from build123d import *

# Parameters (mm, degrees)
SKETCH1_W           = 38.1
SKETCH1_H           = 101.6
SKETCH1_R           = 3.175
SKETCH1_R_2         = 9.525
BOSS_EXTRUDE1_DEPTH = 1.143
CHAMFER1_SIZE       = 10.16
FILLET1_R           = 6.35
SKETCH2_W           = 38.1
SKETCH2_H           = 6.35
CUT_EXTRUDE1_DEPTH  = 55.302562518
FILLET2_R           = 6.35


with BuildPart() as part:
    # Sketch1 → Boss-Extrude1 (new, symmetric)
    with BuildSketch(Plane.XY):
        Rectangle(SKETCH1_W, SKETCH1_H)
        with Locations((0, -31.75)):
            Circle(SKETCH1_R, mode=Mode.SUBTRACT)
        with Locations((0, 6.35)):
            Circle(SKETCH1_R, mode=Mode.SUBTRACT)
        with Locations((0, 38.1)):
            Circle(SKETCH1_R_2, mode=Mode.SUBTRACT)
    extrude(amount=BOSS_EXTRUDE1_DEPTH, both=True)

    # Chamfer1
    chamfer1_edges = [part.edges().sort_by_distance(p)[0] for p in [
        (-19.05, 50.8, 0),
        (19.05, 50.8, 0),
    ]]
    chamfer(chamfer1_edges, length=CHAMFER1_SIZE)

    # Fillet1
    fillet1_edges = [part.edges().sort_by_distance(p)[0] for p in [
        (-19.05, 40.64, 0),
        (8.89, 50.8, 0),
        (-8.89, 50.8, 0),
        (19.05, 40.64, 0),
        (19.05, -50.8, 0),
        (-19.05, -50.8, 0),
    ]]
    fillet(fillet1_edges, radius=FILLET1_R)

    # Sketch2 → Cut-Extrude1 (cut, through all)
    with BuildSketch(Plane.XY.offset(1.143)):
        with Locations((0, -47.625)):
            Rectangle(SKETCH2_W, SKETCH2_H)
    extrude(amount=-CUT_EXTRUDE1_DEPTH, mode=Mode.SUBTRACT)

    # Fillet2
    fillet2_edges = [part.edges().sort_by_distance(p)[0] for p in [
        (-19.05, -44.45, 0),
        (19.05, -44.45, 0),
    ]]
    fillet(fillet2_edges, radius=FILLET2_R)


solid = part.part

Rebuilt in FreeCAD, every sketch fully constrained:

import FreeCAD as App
import Part
import Sketcher
from FreeCAD import Vector
Q = App.Units.Quantity


def edges_at(feature, points):
    """Names of the edges that pass closest to the given points."""
    edges = feature.Shape.Edges
    near = lambda p: min(range(len(edges)), key=lambda i: edges[i].distToShape(Part.Vertex(*p))[0])
    return sorted({f"Edge{near(p) + 1}" for p in points})


def add_polygon(sketch, points):
    """Adds a closed chain of lines whose ends are joined by coincident constraints."""
    first, n = sketch.GeometryCount, len(points)
    for a, b in zip(points, points[1:] + points[:1]):
        sketch.addGeometry(Part.LineSegment(App.Vector(*a, 0), App.Vector(*b, 0)), False)
    for i in range(n):
        sketch.addConstraint(Sketcher.Constraint("Coincident", first + i, 2, first + (i + 1) % n, 1))

doc = App.newDocument("Part")
body = doc.addObject("PartDesign::Body", "Body")

sketch1 = body.newObject("Sketcher::SketchObject", "Sketch")
sketch1.AttachmentSupport = (doc.getObject("XY_Plane"), [""])
sketch1.MapMode = "FlatFace"
add_polygon(sketch1, [(-19.1, 50.8), (-19.1, -50.8), (19.1, -50.8), (19.1, 50.8)])
sketch1.addGeometry(Part.Circle(Vector(0, -31.8, 0), Vector(0, 0, 1), 3.2), False)
sketch1.addGeometry(Part.Circle(Vector(0, 6.3, 0), Vector(0, 0, 1), 3.2), False)
sketch1.addGeometry(Part.Circle(Vector(0, 38.1, 0), Vector(0, 0, 1), 9.5), False)
sketch1.addConstraint([
    Sketcher.Constraint("Vertical", 0),
    Sketcher.Constraint("Horizontal", 1),
    Sketcher.Constraint("Vertical", 2),
    Sketcher.Constraint("Horizontal", 3),
    Sketcher.Constraint("Equal", 4, 5),
    Sketcher.Constraint("Symmetric", 0, 2, 2, 2, -1, 1),
    Sketcher.Constraint("PointOnObject", 4, 3, -2),
    Sketcher.Constraint("PointOnObject", 5, 3, -2),
    Sketcher.Constraint("PointOnObject", 6, 3, -2),
    Sketcher.Constraint("Diameter", 4, Q("0.25 in")),
    Sketcher.Constraint("Diameter", 6, Q("0.75 in")),
    Sketcher.Constraint("DistanceY", 0, 2, 0, 1, Q("4 in")),
    Sketcher.Constraint("DistanceX", 1, 1, 1, 2, Q("1.5 in")),
    Sketcher.Constraint("DistanceY", -1, 1, 6, 3, Q("1.5 in")),
    Sketcher.Constraint("DistanceY", 4, 3, 5, 3, Q("1.5 in")),
    Sketcher.Constraint("DistanceY", 4, 3, -1, 1, Q("1.25 in")),
])
pad1 = body.newObject("PartDesign::Pad", "Pad")
pad1.Profile = sketch1
pad1.Length = Q("0.09 in")
pad1.Midplane = True
doc.recompute()

chamfer = body.newObject("PartDesign::Chamfer", "Chamfer")
chamfer.Base = (pad1, edges_at(pad1, [(-19.05, 50.8, 0), (19.05, 50.8, 0)]))
chamfer.Size = Q("0.4 in")
doc.recompute()

fillet = body.newObject("PartDesign::Fillet", "Fillet")
fillet.Base = (chamfer, edges_at(chamfer, [
    (-19.05, 40.64, 0),
    (8.89, 50.8, 0),
    (-8.89, 50.8, 0),
    (19.05, 40.64, 0),
    (19.05, -50.8, 0),
    (-19.05, -50.8, 0),
]))
fillet.Radius = Q("0.25 in")

sketch2 = body.newObject("Sketcher::SketchObject", "Sketch001")
sketch2.AttachmentSupport = (doc.getObject("XY_Plane"), [""])
sketch2.MapMode = "FlatFace"
sketch2.AttachmentOffset = App.Placement(Vector(0, 0, 0.045 * 25.4), App.Rotation())
add_polygon(sketch2, [(-19, -44), (-19, -51), (19, -51), (19, -44)])
sketch2.addConstraint([
    Sketcher.Constraint("Vertical", 0),
    Sketcher.Constraint("Horizontal", 1),
    Sketcher.Constraint("Vertical", 2),
    Sketcher.Constraint("Horizontal", 3),
    Sketcher.Constraint("DistanceX", 1, 1, 1, 2, Q("1.5 in")),
    Sketcher.Constraint("DistanceY", 0, 2, -1, 1, Q("2 in")),
    Sketcher.Constraint("DistanceY", 0, 2, 0, 1, Q("0.25 in")),
    Sketcher.Constraint("DistanceX", 0, 2, -1, 1, Q("0.75 in")),
])
pocket1 = body.newObject("PartDesign::Pocket", "Pocket")
pocket1.Profile = sketch2
pocket1.Type = "ThroughAll"
doc.recompute()

fillet2 = body.newObject("PartDesign::Fillet", "Fillet001")
fillet2.Base = (pocket1, edges_at(pocket1, [(-19.05, -44.45, 0), (19.05, -44.45, 0)]))
fillet2.Radius = Q("0.25 in")

doc.recompute()
